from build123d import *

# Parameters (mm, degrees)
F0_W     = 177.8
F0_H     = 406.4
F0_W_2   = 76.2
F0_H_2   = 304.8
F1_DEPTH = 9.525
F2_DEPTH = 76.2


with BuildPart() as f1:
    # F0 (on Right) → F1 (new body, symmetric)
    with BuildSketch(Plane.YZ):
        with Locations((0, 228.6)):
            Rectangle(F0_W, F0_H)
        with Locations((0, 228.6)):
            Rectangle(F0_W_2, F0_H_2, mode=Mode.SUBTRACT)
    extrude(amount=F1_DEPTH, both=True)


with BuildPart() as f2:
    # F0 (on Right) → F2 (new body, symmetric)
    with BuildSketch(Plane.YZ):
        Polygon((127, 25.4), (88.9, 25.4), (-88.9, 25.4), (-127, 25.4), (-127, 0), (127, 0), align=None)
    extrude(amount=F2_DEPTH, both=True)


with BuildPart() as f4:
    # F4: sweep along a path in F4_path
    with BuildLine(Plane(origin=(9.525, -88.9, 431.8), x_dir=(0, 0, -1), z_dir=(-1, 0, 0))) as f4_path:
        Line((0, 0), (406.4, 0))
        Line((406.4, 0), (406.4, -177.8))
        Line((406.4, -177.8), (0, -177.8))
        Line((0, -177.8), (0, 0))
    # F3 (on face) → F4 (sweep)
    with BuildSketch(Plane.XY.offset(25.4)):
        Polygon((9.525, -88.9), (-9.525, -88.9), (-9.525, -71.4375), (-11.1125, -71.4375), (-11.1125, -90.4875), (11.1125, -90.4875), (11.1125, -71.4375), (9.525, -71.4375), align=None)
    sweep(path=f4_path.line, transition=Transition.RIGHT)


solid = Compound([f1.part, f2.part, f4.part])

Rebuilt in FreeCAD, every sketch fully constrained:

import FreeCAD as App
import Part
import Sketcher
from FreeCAD import Vector
Q = App.Units.Quantity


def add_polygon(sketch, points):
    """Adds a closed chain of lines whose ends are joined by coincident constraints."""
    first, n = sketch.GeometryCount, len(points)
    for a, b in zip(points, points[1:] + points[:1]):
        sketch.addGeometry(Part.LineSegment(App.Vector(*a, 0), App.Vector(*b, 0)), False)
    for i in range(n):
        sketch.addConstraint(Sketcher.Constraint("Coincident", first + i, 2, first + (i + 1) % n, 1))

doc = App.newDocument("Part")
params = doc.addObject("Spreadsheet::Sheet", "Params")
for row, (alias, value) in enumerate([
    ("sketch1_width", "7 in"),
    ("sketch1_width2", "3 in"),
    ("sketch1_height", "16 in"),
    ("sketch1_height2", "12 in"),
    ("pad1_length", "0.75 in"),
    ("sketch2_width", "10 in"),
    ("sketch2_height", "1 in"),
    ("pad2_length", "6 in"),
    ("sketch3_width", "0.75 in"),
    ("sketch3_width2", "0.0625 in"),
    ("sketch3_height", "0.6875 in"),
    ("sketch4_width", "7 in"),
    ("sketch4_height", "16 in"),
], start=1):
    params.set(f"A{row}", alias)
    params.set(f"B{row}", "=" + value)
    params.setAlias(f"B{row}", alias)

body = doc.addObject("PartDesign::Body", "Body")

# Sketch on YZ plane
sketch1 = doc.addObject("Sketcher::SketchObject", "Sketch")
body.addObject(sketch1)
sketch1.AttachmentSupport = (doc.YZ_Plane, [""])
sketch1.MapMode = "FlatFace"
add_polygon(sketch1, [(-89, 432), (-89, 25), (89, 25), (89, 432)])  # lines 0-3
add_polygon(sketch1, [(38, 76), (-38, 76), (-38, 381), (38, 381)])  # lines 4-7
sketch1.addConstraint([
    Sketcher.Constraint("Vertical", 0),
    Sketcher.Constraint("Horizontal", 1),
    Sketcher.Constraint("Vertical", 2),
    Sketcher.Constraint("Horizontal", 3),
    Sketcher.Constraint("Horizontal", 4),
    Sketcher.Constraint("Vertical", 5),
    Sketcher.Constraint("Horizontal", 6),
    Sketcher.Constraint("Vertical", 7),
    Sketcher.Constraint("DistanceX", 1, 1, 1, 2, Q("7 in")),
    Sketcher.Constraint("DistanceX", 4, 2, 4, 1, Q("3 in")),
    Sketcher.Constraint("DistanceY", 0, 2, 0, 1, Q("16 in")),
    Sketcher.Constraint("DistanceY", 5, 1, 5, 2, Q("12 in")),
    Sketcher.Constraint("DistanceY", -1, 1, 0, 2, Q("1 in")),
    Sketcher.Constraint("DistanceY", -1, 1, 4, 2, Q("3 in")),
    Sketcher.Constraint("DistanceX", 0, 2, 4, 2, Q("2 in")),
    Sketcher.Constraint("DistanceX", 0, 2, -1, 1, Q("3.5 in")),
])
sketch1.setExpression("Constraints[16]", "Params.sketch1_width")
sketch1.setExpression("Constraints[17]", "Params.sketch1_width2")
sketch1.setExpression("Constraints[18]", "Params.sketch1_height")
sketch1.setExpression("Constraints[19]", "Params.sketch1_height2")
pad1 = doc.addObject("PartDesign::Pad", "Pad")
body.addObject(pad1)
pad1.Profile = sketch1
pad1.setExpression("Length", "Params.pad1_length")
pad1.Midplane = True
body2 = doc.addObject("PartDesign::Body", "Body001")

# Sketch on YZ plane
sketch2 = doc.addObject("Sketcher::SketchObject", "Sketch001")
body2.addObject(sketch2)
sketch2.AttachmentSupport = (doc.getObject("YZ_Plane001"), [""])
sketch2.MapMode = "FlatFace"
add_polygon(sketch2, [(127, 25), (-127, 25), (-127, 0), (127, 0)])  # lines 0-3
sketch2.addConstraint([
    Sketcher.Constraint("Horizontal", 0),
    Sketcher.Constraint("Vertical", 1),
    Sketcher.Constraint("Horizontal", 2),
    Sketcher.Constraint("Vertical", 3),
    Sketcher.Constraint("Symmetric", 1, 2, 2, 2, -1, 1),
    Sketcher.Constraint("DistanceX", 0, 2, 0, 1, Q("10 in")),
    Sketcher.Constraint("DistanceY", 1, 2, 1, 1, Q("1 in")),
])
sketch2.setExpression("Constraints[9]", "Params.sketch2_width")
sketch2.setExpression("Constraints[10]", "Params.sketch2_height")
pad2 = doc.addObject("PartDesign::Pad", "Pad001")
body2.addObject(pad2)
pad2.Profile = sketch2
pad2.setExpression("Length", "Params.pad2_length")
pad2.Midplane = True
body3 = doc.addObject("PartDesign::Body", "Body002")

# Sketch on XY plane
sketch3 = doc.addObject("Sketcher::SketchObject", "Sketch002")
body3.addObject(sketch3)
sketch3.AttachmentSupport = (doc.getObject("XY_Plane002"), [""])
sketch3.MapMode = "FlatFace"
sketch3.AttachmentOffset = App.Placement(Vector(0, 0, 1 * 25.4), App.Rotation())
add_polygon(sketch3, [(9.5, -88.9), (-9.5, -88.9), (-9.5, -71.4), (-11.1, -71.4), (-11.1, -90.5), (11.1, -90.5), (11.1, -71.4), (9.5, -71.4)])  # lines 0-7
sketch3.addConstraint([
    Sketcher.Constraint("Horizontal", 0),
    Sketcher.Constraint("Vertical", 1),
    Sketcher.Constraint("Horizontal", 2),
    Sketcher.Constraint("Vertical", 3),
    Sketcher.Constraint("Horizontal", 4),
    Sketcher.Constraint("Vertical", 5),
    Sketcher.Constraint("Horizontal", 6),
    Sketcher.Constraint("Vertical", 7),
    Sketcher.Constraint("Symmetric", 2, 2, 5, 2, -2),
    Sketcher.Constraint("Equal", 2, 6),
    Sketcher.Constraint("Equal", 0, 3),
    Sketcher.Constraint("DistanceX", 0, 2, 0, 1, Q("0.75 in")),
    Sketcher.Constraint("DistanceY", 0, 2, -1, 1, Q("3.5 in")),
    Sketcher.Constraint("DistanceX", 2, 2, 2, 1, Q("0.0625 in")),
    Sketcher.Constraint("DistanceY", 1, 1, 1, 2, Q("0.6875 in")),
])
sketch3.setExpression("Constraints[19]", "Params.sketch3_width")
sketch3.setExpression("Constraints[21]", "Params.sketch3_width2")
sketch3.setExpression("Constraints[22]", "Params.sketch3_height")

# Sketch on YZ plane
sketch4 = doc.addObject("Sketcher::SketchObject", "Sketch003")
body3.addObject(sketch4)
sketch4.AttachmentSupport = (doc.getObject("YZ_Plane002"), [""])
sketch4.MapMode = "FlatFace"
sketch4.AttachmentOffset = App.Placement(Vector(0, 0, 0.375 * 25.4), App.Rotation())
add_polygon(sketch4, [(-89, 432), (-89, 25), (89, 25), (89, 432)])  # lines 0-3
sketch4.addConstraint([
    Sketcher.Constraint("Vertical", 0),
    Sketcher.Constraint("Horizontal", 1),
    Sketcher.Constraint("Vertical", 2),
    Sketcher.Constraint("Horizontal", 3),
    Sketcher.Constraint("DistanceX", 1, 1, 1, 2, Q("7 in")),
    Sketcher.Constraint("DistanceY", 0, 2, 0, 1, Q("16 in")),
    Sketcher.Constraint("DistanceY", -1, 1, 0, 2, Q("1 in")),
    Sketcher.Constraint("DistanceX", 0, 2, -1, 1, Q("3.5 in")),
])
sketch4.setExpression("Constraints[8]", "Params.sketch4_width")
sketch4.setExpression("Constraints[9]", "Params.sketch4_height")
doc.recompute()

additivepipe = doc.addObject("PartDesign::AdditivePipe", "AdditivePipe")
body3.addObject(additivepipe)
additivepipe.Profile = sketch3
additivepipe.Spine = (sketch4, ["Edge1", "Edge2", "Edge3", "Edge4"])
additivepipe.Transition = "Right corner"

doc.recompute()
